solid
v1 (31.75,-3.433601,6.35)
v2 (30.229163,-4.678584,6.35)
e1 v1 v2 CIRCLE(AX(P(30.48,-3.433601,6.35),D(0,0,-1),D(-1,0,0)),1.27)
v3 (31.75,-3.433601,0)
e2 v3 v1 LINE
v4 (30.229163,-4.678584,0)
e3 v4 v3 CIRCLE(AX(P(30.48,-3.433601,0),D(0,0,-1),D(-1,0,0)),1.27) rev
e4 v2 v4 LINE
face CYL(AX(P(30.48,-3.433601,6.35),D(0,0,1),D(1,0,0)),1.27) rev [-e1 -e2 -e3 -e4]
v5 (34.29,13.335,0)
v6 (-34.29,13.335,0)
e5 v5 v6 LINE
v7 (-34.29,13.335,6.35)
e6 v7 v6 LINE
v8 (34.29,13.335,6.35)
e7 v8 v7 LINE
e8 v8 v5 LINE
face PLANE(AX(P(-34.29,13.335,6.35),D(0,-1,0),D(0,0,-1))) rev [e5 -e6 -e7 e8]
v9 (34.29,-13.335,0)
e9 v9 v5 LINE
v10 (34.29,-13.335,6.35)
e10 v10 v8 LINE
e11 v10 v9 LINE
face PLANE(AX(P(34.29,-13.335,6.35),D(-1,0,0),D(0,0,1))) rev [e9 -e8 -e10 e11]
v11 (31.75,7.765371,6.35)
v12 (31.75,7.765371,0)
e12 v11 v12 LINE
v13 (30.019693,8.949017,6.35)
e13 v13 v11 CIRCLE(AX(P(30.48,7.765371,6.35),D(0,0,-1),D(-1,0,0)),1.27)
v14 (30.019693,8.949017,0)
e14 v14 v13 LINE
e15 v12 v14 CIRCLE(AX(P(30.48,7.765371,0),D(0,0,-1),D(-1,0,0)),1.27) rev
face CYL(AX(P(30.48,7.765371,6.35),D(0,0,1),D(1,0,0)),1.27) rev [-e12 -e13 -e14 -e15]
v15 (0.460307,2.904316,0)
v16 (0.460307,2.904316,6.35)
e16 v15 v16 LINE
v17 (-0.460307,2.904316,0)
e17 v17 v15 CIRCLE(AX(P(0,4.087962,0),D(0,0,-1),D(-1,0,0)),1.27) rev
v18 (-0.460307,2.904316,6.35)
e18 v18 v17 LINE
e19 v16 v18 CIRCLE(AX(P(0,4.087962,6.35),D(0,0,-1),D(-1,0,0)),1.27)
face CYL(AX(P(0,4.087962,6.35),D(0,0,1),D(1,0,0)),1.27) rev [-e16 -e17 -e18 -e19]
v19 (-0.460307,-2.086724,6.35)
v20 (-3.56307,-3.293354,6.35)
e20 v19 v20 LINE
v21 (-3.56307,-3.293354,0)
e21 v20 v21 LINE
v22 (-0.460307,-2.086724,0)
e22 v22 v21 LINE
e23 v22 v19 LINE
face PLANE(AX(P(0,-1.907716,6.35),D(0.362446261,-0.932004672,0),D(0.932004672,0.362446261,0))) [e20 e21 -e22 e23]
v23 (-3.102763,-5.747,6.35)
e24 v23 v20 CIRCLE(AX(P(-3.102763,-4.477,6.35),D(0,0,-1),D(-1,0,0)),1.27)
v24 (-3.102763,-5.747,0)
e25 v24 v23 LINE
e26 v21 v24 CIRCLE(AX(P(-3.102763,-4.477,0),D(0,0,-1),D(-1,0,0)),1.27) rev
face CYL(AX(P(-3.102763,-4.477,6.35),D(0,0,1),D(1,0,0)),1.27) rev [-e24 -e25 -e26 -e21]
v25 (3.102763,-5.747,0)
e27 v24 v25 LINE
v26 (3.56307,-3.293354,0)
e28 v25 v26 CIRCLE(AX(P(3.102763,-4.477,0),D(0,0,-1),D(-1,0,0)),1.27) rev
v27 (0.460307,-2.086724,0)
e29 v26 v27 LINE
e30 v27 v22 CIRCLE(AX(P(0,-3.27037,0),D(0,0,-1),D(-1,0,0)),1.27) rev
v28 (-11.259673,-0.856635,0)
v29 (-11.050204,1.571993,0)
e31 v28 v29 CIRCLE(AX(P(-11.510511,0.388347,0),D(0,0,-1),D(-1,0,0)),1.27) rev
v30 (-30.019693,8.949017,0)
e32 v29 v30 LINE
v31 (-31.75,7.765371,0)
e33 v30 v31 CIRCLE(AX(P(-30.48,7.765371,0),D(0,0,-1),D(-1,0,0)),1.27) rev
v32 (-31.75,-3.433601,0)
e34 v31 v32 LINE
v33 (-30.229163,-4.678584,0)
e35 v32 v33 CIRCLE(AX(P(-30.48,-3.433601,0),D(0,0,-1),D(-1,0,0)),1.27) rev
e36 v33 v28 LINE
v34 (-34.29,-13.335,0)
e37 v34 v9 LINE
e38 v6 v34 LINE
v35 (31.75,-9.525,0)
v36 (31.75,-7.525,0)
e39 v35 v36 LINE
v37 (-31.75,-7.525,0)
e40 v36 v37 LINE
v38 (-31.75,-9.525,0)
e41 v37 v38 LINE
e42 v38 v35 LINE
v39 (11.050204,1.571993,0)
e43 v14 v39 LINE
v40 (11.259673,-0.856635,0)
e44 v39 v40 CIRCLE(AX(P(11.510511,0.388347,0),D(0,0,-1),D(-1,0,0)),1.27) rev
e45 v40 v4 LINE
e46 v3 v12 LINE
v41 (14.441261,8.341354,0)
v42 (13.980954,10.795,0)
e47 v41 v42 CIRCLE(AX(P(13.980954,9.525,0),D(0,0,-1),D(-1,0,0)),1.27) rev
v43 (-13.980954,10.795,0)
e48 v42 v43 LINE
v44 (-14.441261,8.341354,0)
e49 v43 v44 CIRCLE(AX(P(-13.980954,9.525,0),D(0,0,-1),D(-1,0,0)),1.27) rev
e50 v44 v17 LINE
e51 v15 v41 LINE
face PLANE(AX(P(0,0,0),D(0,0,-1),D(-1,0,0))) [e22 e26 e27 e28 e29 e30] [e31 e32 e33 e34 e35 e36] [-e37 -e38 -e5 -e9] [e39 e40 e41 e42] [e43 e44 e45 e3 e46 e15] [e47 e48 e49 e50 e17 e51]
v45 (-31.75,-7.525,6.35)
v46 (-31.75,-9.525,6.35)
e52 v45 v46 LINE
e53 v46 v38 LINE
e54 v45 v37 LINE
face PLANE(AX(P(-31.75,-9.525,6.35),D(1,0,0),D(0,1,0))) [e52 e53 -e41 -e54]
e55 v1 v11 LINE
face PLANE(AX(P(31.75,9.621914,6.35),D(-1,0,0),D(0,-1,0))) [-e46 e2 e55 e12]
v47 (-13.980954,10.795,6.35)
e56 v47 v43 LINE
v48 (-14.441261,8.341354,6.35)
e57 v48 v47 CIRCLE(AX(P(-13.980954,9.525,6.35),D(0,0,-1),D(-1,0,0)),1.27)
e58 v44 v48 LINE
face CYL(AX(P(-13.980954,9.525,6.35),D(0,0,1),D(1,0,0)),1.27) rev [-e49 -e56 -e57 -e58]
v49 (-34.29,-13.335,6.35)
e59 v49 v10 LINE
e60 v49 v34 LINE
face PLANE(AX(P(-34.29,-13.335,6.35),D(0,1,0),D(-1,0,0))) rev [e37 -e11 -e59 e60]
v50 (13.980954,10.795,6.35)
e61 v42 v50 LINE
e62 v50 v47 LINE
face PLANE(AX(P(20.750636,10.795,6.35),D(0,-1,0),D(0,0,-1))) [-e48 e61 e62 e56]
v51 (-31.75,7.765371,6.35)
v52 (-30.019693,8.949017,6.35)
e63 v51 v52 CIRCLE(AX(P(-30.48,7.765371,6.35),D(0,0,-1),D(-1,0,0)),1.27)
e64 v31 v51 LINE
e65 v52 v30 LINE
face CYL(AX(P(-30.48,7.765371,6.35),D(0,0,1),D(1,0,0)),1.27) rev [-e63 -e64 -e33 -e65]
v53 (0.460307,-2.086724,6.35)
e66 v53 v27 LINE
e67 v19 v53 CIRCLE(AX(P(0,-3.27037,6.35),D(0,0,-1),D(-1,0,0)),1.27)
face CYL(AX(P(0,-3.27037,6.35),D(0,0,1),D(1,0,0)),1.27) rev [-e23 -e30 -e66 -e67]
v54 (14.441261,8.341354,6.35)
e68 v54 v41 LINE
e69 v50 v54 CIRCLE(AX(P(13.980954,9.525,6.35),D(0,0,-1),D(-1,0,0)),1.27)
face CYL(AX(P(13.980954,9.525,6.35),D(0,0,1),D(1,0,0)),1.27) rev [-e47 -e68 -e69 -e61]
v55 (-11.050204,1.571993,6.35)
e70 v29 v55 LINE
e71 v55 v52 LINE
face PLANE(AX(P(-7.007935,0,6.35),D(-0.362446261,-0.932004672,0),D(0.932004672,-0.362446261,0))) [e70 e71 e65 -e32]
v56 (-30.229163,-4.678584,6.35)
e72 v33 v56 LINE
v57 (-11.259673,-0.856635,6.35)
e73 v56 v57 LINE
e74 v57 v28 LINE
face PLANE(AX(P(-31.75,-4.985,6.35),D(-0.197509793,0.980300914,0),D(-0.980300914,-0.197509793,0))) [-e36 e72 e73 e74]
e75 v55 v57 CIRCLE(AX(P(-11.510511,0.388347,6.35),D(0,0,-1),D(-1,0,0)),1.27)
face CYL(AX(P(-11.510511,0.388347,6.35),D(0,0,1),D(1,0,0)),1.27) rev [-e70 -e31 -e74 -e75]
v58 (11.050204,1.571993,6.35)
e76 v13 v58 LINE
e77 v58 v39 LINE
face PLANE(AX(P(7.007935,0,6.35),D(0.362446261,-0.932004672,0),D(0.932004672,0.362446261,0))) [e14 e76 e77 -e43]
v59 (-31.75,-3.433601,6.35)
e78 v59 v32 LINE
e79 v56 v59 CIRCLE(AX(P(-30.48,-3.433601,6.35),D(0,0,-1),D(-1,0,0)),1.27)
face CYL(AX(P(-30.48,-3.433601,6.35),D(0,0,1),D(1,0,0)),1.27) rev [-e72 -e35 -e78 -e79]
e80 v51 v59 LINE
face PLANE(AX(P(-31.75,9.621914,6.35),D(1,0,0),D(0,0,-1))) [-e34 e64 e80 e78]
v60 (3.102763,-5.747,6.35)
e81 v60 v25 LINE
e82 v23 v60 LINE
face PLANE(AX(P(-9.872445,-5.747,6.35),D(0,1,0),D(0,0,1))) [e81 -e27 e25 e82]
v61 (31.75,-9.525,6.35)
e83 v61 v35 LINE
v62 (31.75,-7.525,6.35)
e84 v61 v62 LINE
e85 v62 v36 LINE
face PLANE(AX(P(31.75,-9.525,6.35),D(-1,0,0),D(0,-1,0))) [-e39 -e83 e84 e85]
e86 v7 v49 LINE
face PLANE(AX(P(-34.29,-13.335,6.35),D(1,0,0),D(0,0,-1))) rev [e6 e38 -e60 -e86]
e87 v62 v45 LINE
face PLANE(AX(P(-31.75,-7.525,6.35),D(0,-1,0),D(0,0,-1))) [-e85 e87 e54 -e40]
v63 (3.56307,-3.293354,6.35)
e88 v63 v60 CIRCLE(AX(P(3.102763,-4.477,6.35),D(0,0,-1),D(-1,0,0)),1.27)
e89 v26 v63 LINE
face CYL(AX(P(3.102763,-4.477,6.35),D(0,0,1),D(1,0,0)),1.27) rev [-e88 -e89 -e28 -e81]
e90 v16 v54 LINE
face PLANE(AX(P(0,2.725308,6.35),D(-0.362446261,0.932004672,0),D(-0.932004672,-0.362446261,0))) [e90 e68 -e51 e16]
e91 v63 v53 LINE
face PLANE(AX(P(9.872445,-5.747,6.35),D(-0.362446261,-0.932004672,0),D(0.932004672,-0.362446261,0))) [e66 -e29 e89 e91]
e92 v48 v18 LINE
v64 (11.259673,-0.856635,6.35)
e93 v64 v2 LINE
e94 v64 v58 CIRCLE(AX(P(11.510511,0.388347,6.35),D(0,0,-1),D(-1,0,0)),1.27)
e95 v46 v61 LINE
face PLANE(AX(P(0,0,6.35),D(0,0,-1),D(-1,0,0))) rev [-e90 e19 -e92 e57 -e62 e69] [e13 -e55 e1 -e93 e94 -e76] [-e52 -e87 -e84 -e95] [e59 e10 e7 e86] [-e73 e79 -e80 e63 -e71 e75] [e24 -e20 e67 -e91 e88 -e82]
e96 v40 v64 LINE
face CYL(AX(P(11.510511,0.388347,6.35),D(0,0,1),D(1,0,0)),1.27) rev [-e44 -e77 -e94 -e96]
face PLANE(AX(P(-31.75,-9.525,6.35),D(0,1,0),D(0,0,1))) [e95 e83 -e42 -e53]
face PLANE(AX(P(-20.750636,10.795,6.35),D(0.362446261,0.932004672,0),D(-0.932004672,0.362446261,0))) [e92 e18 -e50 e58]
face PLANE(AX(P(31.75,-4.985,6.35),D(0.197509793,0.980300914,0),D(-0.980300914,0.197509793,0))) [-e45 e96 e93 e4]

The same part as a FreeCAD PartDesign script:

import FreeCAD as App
import Part
import Sketcher

V = App.Vector
Q = App.Units.Quantity


def edges_at(feature, points):
    """Names of the edges that pass closest to the given points."""
    edges = feature.Shape.Edges
    near = lambda p: min(range(len(edges)), key=lambda i: edges[i].distToShape(Part.Vertex(*p))[0])
    return sorted({f"Edge{near(p) + 1}" for p in points})


def add_polygon(sketch, points):
    """Adds a closed chain of lines whose ends are joined by coincident constraints."""
    first, n = sketch.GeometryCount, len(points)
    for a, b in zip(points, points[1:] + points[:1]):
        sketch.addGeometry(Part.LineSegment(App.Vector(*a, 0), App.Vector(*b, 0)), False)
    for i in range(n):
        sketch.addConstraint(Sketcher.Constraint("Coincident", first + i, 2, first + (i + 1) % n, 1))

doc = App.newDocument("Part")
body = doc.addObject("PartDesign::Body", "Body")

# Sketch on XY plane
sketch1 = body.newObject("Sketcher::SketchObject", "Sketch")
sketch1.AttachmentSupport = (doc.getObject("XY_Plane"), [""])
sketch1.MapMode = "FlatFace"
add_polygon(sketch1, [(-34.29, 13.335), (-34.29, -13.335), (34.29, -13.335), (34.29, 13.335)])  # lines 0-3
add_polygon(sketch1, [(31.75, -9.525), (-31.75, -9.525), (-31.75, -7.525), (31.75, -7.525)])  # lines 4-7
add_polygon(sketch1, [(-9.872445, -5.747), (0, -1.907716), (9.872445, -5.747)])  # lines 8-10
add_polygon(sketch1, [(-31.75, -4.985), (-31.75, 9.621914), (-7.007935, 0)])  # lines 11-13
add_polygon(sketch1, [(31.75, -4.985), (7.007935, 0), (31.75, 9.621914)])  # lines 14-16
add_polygon(sketch1, [(0, 2.725308), (-20.750636, 10.795), (20.750636, 10.795)])  # lines 17-19
sketch1.addConstraint(Sketcher.Constraint("Vertical", 0))
sketch1.addConstraint(Sketcher.Constraint("Horizontal", 1))
sketch1.addConstraint(Sketcher.Constraint("Vertical", 2))
sketch1.addConstraint(Sketcher.Constraint("Horizontal", 3))
sketch1.addConstraint(Sketcher.Constraint("Horizontal", 4))
sketch1.addConstraint(Sketcher.Constraint("Vertical", 5))
sketch1.addConstraint(Sketcher.Constraint("Horizontal", 6))
sketch1.addConstraint(Sketcher.Constraint("Vertical", 7))
sketch1.addConstraint(Sketcher.Constraint("Horizontal", 10))
sketch1.addConstraint(Sketcher.Constraint("Vertical", 11))
sketch1.addConstraint(Sketcher.Constraint("Vertical", 16))
sketch1.addConstraint(Sketcher.Constraint("Horizontal", 18))
sketch1.addConstraint(Sketcher.Constraint("Symmetric", 0, 2, 2, 2, -1, 1))
sketch1.addConstraint(Sketcher.Constraint("Symmetric", 12, 2, 14, 2, -1, 1))
sketch1.addConstraint(Sketcher.Constraint("Symmetric", 11, 2, 15, 2, -2))
sketch1.addConstraint(Sketcher.Constraint("PointOnObject", 8, 2, -2))
sketch1.addConstraint(Sketcher.Constraint("PointOnObject", 12, 2, -1))
sketch1.addConstraint(Sketcher.Constraint("PointOnObject", 19, 2, -2))
sketch1.addConstraint(Sketcher.Constraint("Parallel", 9, 12))
sketch1.addConstraint(Sketcher.Constraint("Parallel", 8, 15))
sketch1.addConstraint(Sketcher.Constraint("Parallel", 12, 17))
sketch1.addConstraint(Sketcher.Constraint("Parallel", 15, 19))
sketch1.addConstraint(Sketcher.Constraint("Horizontal", 13, 2, 16, 2))
sketch1.addConstraint(Sketcher.Constraint("Vertical", 5, 2, 11, 2))
sketch1.addConstraint(Sketcher.Constraint("Vertical", 7, 2, 15, 2))
sketch1.addConstraint(Sketcher.Constraint("DistanceX", 1, 1, 1, 2, Q("2.7 in")))
sketch1.addConstraint(Sketcher.Constraint("DistanceX", 4, 2, 4, 1, Q("2.5 in")))
sketch1.addConstraint(Sketcher.Constraint("DistanceY", 0, 2, 0, 1, Q("1.05 in")))
sketch1.addConstraint(Sketcher.Constraint("DistanceY", 4, 2, 3, 2, Q("0.9 in")))
sketch1.addConstraint(Sketcher.Constraint("DistanceY", 5, 2, 13, 2, Q("0.1 in")))
sketch1.addConstraint(Sketcher.Constraint("DistanceY", 17, 2, 3, 2, Q("0.1 in")))
sketch1.addConstraint(Sketcher.Constraint("DistanceY", 6, 2, 9, 2, Q("0.07 in")))
sketch1.addConstraint(Sketcher.Constraint("DistanceY", 5, 1, 5, 2, 2.0))
sketch1.addConstraint(Sketcher.Constraint("Distance", 8, 10.592699))
sketch1.addConstraint(Sketcher.Constraint("DistanceX", 10, 2, 10, 1, 19.74489))
sketch1.addConstraint(Sketcher.Constraint("DistanceX", 18, 1, 18, 2, 41.501272))
sketch1.addConstraint(Sketcher.Constraint("DistanceX", 17, 2, 12, 2, 13.742701))
pad1 = body.newObject("PartDesign::Pad", "Pad")
pad1.Profile = sketch1
pad1.Length = Q("0.25 in")
doc.recompute()

fillet = body.newObject("PartDesign::Fillet", "Fillet")
fillet.Base = (pad1, edges_at(pad1, [
    (20.751, 10.795, 3.175),
    (-20.751, 10.795, 3.175),
    (0, 2.725, 3.175),
    (-7.008, 0, 3.175),
    (-31.75, 9.622, 3.175),
    (-31.75, -4.985, 3.175),
    (7.008, 0, 3.175),
    (31.75, -4.985, 3.175),
    (31.75, 9.622, 3.175),
    (9.872, -5.747, 3.175),
    (0, -1.908, 3.175),
    (-9.872, -5.747, 3.175),
]))
fillet.Radius = Q("0.05 in")

doc.recompute()
